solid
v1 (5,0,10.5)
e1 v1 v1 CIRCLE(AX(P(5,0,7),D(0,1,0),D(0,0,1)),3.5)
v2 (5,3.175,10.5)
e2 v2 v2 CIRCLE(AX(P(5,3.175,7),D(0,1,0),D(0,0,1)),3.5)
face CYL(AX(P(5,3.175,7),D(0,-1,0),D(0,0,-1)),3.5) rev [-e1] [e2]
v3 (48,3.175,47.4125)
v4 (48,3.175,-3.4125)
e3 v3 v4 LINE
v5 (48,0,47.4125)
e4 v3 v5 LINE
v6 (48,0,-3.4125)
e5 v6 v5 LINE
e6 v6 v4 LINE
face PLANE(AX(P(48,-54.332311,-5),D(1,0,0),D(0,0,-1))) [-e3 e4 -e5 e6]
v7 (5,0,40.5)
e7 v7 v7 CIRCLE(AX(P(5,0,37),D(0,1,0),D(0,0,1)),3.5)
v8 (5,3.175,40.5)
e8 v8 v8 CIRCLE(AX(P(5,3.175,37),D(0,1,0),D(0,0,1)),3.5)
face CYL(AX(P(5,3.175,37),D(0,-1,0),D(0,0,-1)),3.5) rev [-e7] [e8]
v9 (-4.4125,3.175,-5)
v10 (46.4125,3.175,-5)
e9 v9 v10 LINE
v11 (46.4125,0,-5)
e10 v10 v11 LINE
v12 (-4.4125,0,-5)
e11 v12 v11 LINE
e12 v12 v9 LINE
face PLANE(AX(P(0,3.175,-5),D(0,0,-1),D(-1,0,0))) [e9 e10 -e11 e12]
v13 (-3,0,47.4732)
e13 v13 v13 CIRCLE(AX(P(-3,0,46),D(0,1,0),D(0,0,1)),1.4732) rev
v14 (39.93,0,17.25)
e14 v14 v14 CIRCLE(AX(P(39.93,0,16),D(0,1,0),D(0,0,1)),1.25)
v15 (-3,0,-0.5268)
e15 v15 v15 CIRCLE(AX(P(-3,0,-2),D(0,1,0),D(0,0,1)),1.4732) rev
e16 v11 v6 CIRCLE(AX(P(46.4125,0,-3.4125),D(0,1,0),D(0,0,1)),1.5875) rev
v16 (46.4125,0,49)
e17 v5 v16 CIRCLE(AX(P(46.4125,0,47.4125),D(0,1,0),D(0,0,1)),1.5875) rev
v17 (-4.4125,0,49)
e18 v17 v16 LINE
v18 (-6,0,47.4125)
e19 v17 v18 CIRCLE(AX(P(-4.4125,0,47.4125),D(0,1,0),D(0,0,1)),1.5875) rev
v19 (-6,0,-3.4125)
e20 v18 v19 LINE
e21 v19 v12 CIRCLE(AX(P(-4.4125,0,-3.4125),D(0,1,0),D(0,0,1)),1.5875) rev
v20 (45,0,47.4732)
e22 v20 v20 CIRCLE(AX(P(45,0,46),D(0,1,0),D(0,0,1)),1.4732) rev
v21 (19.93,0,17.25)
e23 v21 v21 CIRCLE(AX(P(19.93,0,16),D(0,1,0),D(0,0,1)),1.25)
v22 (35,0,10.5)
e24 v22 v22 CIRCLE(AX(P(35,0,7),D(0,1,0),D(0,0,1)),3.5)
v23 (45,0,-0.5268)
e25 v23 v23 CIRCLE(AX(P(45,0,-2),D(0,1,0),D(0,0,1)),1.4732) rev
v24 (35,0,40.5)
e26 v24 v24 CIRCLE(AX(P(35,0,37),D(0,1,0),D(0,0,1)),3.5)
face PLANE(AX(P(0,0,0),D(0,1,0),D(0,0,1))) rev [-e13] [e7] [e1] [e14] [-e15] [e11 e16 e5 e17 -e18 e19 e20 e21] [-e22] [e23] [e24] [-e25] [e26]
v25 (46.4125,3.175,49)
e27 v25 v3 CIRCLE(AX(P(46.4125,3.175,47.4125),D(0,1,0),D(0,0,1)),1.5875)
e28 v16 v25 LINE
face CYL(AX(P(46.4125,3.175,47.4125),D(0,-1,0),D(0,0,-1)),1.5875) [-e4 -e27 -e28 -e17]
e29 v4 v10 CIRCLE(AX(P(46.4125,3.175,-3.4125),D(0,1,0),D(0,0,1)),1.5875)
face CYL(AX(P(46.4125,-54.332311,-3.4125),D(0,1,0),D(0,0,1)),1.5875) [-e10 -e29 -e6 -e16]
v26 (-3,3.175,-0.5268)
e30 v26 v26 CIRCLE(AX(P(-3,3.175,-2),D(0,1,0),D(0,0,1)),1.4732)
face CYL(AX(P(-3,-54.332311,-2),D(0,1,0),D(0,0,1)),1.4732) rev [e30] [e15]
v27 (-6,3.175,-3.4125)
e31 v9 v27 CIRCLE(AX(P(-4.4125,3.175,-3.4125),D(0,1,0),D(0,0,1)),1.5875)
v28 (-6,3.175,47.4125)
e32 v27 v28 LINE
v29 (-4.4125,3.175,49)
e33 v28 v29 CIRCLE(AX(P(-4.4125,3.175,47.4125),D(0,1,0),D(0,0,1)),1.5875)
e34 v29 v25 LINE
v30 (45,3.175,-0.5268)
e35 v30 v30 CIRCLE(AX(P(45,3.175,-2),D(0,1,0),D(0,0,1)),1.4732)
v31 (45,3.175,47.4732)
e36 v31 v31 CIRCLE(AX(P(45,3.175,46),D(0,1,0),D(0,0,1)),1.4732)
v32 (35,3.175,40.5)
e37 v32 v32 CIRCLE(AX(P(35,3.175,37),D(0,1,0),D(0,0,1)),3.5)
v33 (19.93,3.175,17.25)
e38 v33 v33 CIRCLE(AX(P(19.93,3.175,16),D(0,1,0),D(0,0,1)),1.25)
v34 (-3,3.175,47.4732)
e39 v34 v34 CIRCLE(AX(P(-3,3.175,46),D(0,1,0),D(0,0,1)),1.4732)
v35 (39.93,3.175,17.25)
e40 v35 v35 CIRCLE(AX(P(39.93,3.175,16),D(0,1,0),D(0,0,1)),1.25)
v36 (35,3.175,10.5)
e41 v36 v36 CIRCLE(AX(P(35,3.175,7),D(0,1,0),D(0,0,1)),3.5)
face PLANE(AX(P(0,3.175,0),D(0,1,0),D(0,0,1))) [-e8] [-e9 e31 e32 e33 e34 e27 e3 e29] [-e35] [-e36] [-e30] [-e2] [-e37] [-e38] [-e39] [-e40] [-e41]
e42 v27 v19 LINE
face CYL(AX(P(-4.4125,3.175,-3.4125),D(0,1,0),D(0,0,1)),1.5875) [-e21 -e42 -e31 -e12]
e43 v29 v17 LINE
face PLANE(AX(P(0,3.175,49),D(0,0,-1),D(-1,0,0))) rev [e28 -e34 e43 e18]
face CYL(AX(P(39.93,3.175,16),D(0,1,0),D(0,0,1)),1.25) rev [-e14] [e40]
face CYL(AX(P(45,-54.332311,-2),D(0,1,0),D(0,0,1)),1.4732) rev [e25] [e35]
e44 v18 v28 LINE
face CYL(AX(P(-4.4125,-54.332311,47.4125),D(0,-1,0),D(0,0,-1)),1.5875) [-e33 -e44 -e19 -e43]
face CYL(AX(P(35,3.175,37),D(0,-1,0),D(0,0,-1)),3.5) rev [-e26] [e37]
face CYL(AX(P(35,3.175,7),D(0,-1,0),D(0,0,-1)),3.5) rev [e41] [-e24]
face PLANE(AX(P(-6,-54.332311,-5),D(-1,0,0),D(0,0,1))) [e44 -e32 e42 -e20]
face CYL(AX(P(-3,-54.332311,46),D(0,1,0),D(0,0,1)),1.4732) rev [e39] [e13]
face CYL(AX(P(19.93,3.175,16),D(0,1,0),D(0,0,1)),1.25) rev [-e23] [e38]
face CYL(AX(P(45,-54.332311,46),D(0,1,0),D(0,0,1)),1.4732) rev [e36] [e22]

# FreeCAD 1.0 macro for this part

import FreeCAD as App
import Part
import Sketcher


def edges_at(feature, points):
    """Names of the edges that pass closest to the given points."""
    edges = feature.Shape.Edges
    near = lambda p: min(range(len(edges)), key=lambda i: edges[i].distToShape(Part.Vertex(*p))[0])
    return sorted({f"Edge{near(p) + 1}" for p in points})

doc = App.newDocument("Part")
body = doc.addObject("PartDesign::Body", "Body")

# Sketch on XZ plane
sketch1 = body.newObject("Sketcher::SketchObject", "Sketch")
sketch1.AttachmentSupport = (doc.getObject("XZ_Plane"), [""])
sketch1.MapMode = "FlatFace"
sketch1.addGeometry([
    Part.LineSegment(App.Vector(0, 49, 0), App.Vector(42, 49, 0)),  # 0
    Part.LineSegment(App.Vector(42, 49, 0), App.Vector(42, -5, 0)),  # 1
    Part.LineSegment(App.Vector(42, -5, 0), App.Vector(0, -5, 0)),  # 2
    Part.LineSegment(App.Vector(0, -5, 0), App.Vector(0, 49, 0)),  # 3
    Part.Circle(App.Vector(5, 37, 0), App.Vector(0, 0, 1), 3.5),  # 4
    Part.Circle(App.Vector(35, 37, 0), App.Vector(0, 0, 1), 3.5),  # 5
    Part.Circle(App.Vector(19.9, 16, 0), App.Vector(0, 0, 1), 0.5),  # 6
    Part.Circle(App.Vector(5, 7, 0), App.Vector(0, 0, 1), 3.5),  # 7
    Part.Circle(App.Vector(39.9, 16, 0), App.Vector(0, 0, 1), 0.5),  # 8
    Part.Circle(App.Vector(35, 7, 0), App.Vector(0, 0, 1), 3.5),  # 9
], False)
sketch1.addConstraint([
    Sketcher.Constraint("Coincident", 0, 2, 1, 1),
    Sketcher.Constraint("Coincident", 1, 2, 2, 1),
    Sketcher.Constraint("Coincident", 2, 2, 3, 1),
    Sketcher.Constraint("Coincident", 3, 2, 0, 1),
    Sketcher.Constraint("Horizontal", 0),
    Sketcher.Constraint("Vertical", 1),
    Sketcher.Constraint("Horizontal", 2),
    Sketcher.Constraint("Vertical", 3),
    Sketcher.Constraint("Equal", 4, 5),
    Sketcher.Constraint("Equal", 5, 7),
    Sketcher.Constraint("Equal", 6, 8),
    Sketcher.Constraint("Equal", 7, 9),
    Sketcher.Constraint("PointOnObject", 2, 2, -2),
    Sketcher.Constraint("Horizontal", 4, 3, 5, 3),
    Sketcher.Constraint("Horizontal", 6, 3, 8, 3),
    Sketcher.Constraint("Horizontal", 7, 3, 9, 3),
    Sketcher.Constraint("Vertical", 4, 3, 7, 3),
    Sketcher.Constraint("Vertical", 5, 3, 9, 3),
    Sketcher.Constraint("Diameter", 4, 7.0),
    Sketcher.Constraint("Diameter", 6, 1.0),
    Sketcher.Constraint("DistanceX", 0, 1, 0, 2, 42.0),
    Sketcher.Constraint("DistanceY", 1, 2, 1, 1, 54.0),
    Sketcher.Constraint("DistanceX", -1, 1, 4, 3, 5.0),
    Sketcher.Constraint("DistanceY", -1, 1, 4, 3, 37.0),
    Sketcher.Constraint("DistanceX", -1, 1, 5, 3, 35.0),
    Sketcher.Constraint("DistanceY", -1, 1, 6, 3, 16.0),
    Sketcher.Constraint("DistanceY", -1, 1, 7, 3, 7.0),
    Sketcher.Constraint("DistanceY", -1, 1, 0, 2, 49.0),
    Sketcher.Constraint("DistanceX", 6, 3, 8, 3, 20.0),
    Sketcher.Constraint("DistanceX", -1, 1, 6, 3, 19.93),
])
pad1 = body.newObject("PartDesign::Pad", "Pad")
pad1.Profile = sketch1
pad1.Length = 3.175
pad1.Reversed = True

# Sketch on XZ plane
sketch2 = body.newObject("Sketcher::SketchObject", "Sketch001")
sketch2.AttachmentSupport = (doc.getObject("XZ_Plane"), [""])
sketch2.MapMode = "FlatFace"
sketch2.AttachmentOffset = App.Placement(App.Vector(0, 0, -3.175), App.Rotation())
sketch2.addGeometry([
    Part.LineSegment(App.Vector(-6, -5, 0), App.Vector(-6, 49, 0)),  # 0
    Part.LineSegment(App.Vector(-6, 49, 0), App.Vector(0, 49, 0)),  # 1
    Part.LineSegment(App.Vector(0, 49, 0), App.Vector(0, -5, 0)),  # 2
    Part.LineSegment(App.Vector(0, -5, 0), App.Vector(-6, -5, 0)),  # 3
    Part.Circle(App.Vector(-3, 46, 0), App.Vector(0, 0, 1), 1.5),  # 4
    Part.Circle(App.Vector(-3, -2, 0), App.Vector(0, 0, 1), 1.5),  # 5
    Part.LineSegment(App.Vector(42, -5, 0), App.Vector(42, 49, 0)),  # 6
    Part.LineSegment(App.Vector(42, 49, 0), App.Vector(48, 49, 0)),  # 7
    Part.LineSegment(App.Vector(48, 49, 0), App.Vector(48, -5, 0)),  # 8
    Part.LineSegment(App.Vector(48, -5, 0), App.Vector(42, -5, 0)),  # 9
    Part.Circle(App.Vector(45, 46, 0), App.Vector(0, 0, 1), 1.5),  # 10
    Part.Circle(App.Vector(45, -2, 0), App.Vector(0, 0, 1), 1.5),  # 11
], False)
sketch2.addConstraint([
    Sketcher.Constraint("Coincident", 0, 2, 1, 1),
    Sketcher.Constraint("Coincident", 1, 2, 2, 1),
    Sketcher.Constraint("Coincident", 2, 2, 3, 1),
    Sketcher.Constraint("Coincident", 3, 2, 0, 1),
    Sketcher.Constraint("Coincident", 6, 2, 7, 1),
    Sketcher.Constraint("Coincident", 7, 2, 8, 1),
    Sketcher.Constraint("Coincident", 8, 2, 9, 1),
    Sketcher.Constraint("Coincident", 9, 2, 6, 1),
    Sketcher.Constraint("Vertical", 0),
    Sketcher.Constraint("Horizontal", 1),
    Sketcher.Constraint("Vertical", 2),
    Sketcher.Constraint("Horizontal", 3),
    Sketcher.Constraint("Vertical", 6),
    Sketcher.Constraint("Horizontal", 7),
    Sketcher.Constraint("Vertical", 8),
    Sketcher.Constraint("Horizontal", 9),
    Sketcher.Constraint("Equal", 4, 5),
    Sketcher.Constraint("Equal", 5, 10),
    Sketcher.Constraint("Equal", 10, 11),
    Sketcher.Constraint("PointOnObject", 1, 2, -2),
    Sketcher.Constraint("Horizontal", 4, 3, 10, 3),
    Sketcher.Constraint("Horizontal", 5, 3, 11, 3),
    Sketcher.Constraint("Horizontal", 1, 2, 6, 2),
    Sketcher.Constraint("Horizontal", 3, 2, 8, 2),
    Sketcher.Constraint("Vertical", 4, 3, 5, 3),
    Sketcher.Constraint("Vertical", 10, 3, 11, 3),
    Sketcher.Constraint("Equal", 3, 7),
    Sketcher.Constraint("DistanceX", 1, 1, 1, 2, 6.0),
    Sketcher.Constraint("DistanceY", 0, 1, 0, 2, 54.0),
    Sketcher.Constraint("DistanceX", 4, 3, -1, 1, 3.0),
    Sketcher.Constraint("DistanceY", -1, 1, 4, 3, 46.0),
    Sketcher.Constraint("DistanceY", 5, 3, -1, 1, 2.0),
    Sketcher.Constraint("DistanceX", -1, 1, 10, 3, 45.0),
    Sketcher.Constraint("DistanceY", -1, 1, 0, 2, 49.0),
    Sketcher.Constraint("DistanceX", -1, 1, 6, 2, 42.0),
    Sketcher.Constraint("Diameter", 4, 2.9464),
])
pad2 = body.newObject("PartDesign::Pad", "Pad001")
pad2.Profile = sketch2
pad2.Length = 3.175

# Sketch on XZ plane
sketch3 = body.newObject("Sketcher::SketchObject", "Sketch002")
sketch3.AttachmentSupport = (doc.getObject("XZ_Plane"), [""])
sketch3.MapMode = "FlatFace"
sketch3.AttachmentOffset = App.Placement(App.Vector(0, 0, -3.175), App.Rotation())
sketch3.addGeometry([
    Part.Circle(App.Vector(39.9, 16, 0), App.Vector(0, 0, 1), 1.2),
    Part.Circle(App.Vector(19.9, 16, 0), App.Vector(0, 0, 1), 1.2),
], False)
sketch3.addConstraint([
    Sketcher.Constraint("Equal", 0, 1),
    Sketcher.Constraint("Horizontal", 0, 3, 1, 3),
    Sketcher.Constraint("Diameter", 0, 2.5),
    Sketcher.Constraint("DistanceY", -1, 1, 0, 3, 16.0),
    Sketcher.Constraint("DistanceX", 1, 3, 0, 3, 20.0),
    Sketcher.Constraint("DistanceX", -1, 1, 0, 3, 39.93),
])
doc.recompute()
hole = body.newObject("PartDesign::Hole", "Hole")
hole.Profile = sketch3
hole.ThreadType = "None"
hole.Diameter = 2.5
hole.DepthType = "ThroughAll"
hole.Reversed = True
doc.recompute()

fillet = body.newObject("PartDesign::Fillet", "Fillet")
fillet.Base = (hole, edges_at(hole, [
    (-6, 1.587, -5),
    (-6, 1.587, 49),
    (48, 1.587, 49),
    (48, 1.587, -5),
]))
fillet.Radius = 1.5875

doc.recompute()
